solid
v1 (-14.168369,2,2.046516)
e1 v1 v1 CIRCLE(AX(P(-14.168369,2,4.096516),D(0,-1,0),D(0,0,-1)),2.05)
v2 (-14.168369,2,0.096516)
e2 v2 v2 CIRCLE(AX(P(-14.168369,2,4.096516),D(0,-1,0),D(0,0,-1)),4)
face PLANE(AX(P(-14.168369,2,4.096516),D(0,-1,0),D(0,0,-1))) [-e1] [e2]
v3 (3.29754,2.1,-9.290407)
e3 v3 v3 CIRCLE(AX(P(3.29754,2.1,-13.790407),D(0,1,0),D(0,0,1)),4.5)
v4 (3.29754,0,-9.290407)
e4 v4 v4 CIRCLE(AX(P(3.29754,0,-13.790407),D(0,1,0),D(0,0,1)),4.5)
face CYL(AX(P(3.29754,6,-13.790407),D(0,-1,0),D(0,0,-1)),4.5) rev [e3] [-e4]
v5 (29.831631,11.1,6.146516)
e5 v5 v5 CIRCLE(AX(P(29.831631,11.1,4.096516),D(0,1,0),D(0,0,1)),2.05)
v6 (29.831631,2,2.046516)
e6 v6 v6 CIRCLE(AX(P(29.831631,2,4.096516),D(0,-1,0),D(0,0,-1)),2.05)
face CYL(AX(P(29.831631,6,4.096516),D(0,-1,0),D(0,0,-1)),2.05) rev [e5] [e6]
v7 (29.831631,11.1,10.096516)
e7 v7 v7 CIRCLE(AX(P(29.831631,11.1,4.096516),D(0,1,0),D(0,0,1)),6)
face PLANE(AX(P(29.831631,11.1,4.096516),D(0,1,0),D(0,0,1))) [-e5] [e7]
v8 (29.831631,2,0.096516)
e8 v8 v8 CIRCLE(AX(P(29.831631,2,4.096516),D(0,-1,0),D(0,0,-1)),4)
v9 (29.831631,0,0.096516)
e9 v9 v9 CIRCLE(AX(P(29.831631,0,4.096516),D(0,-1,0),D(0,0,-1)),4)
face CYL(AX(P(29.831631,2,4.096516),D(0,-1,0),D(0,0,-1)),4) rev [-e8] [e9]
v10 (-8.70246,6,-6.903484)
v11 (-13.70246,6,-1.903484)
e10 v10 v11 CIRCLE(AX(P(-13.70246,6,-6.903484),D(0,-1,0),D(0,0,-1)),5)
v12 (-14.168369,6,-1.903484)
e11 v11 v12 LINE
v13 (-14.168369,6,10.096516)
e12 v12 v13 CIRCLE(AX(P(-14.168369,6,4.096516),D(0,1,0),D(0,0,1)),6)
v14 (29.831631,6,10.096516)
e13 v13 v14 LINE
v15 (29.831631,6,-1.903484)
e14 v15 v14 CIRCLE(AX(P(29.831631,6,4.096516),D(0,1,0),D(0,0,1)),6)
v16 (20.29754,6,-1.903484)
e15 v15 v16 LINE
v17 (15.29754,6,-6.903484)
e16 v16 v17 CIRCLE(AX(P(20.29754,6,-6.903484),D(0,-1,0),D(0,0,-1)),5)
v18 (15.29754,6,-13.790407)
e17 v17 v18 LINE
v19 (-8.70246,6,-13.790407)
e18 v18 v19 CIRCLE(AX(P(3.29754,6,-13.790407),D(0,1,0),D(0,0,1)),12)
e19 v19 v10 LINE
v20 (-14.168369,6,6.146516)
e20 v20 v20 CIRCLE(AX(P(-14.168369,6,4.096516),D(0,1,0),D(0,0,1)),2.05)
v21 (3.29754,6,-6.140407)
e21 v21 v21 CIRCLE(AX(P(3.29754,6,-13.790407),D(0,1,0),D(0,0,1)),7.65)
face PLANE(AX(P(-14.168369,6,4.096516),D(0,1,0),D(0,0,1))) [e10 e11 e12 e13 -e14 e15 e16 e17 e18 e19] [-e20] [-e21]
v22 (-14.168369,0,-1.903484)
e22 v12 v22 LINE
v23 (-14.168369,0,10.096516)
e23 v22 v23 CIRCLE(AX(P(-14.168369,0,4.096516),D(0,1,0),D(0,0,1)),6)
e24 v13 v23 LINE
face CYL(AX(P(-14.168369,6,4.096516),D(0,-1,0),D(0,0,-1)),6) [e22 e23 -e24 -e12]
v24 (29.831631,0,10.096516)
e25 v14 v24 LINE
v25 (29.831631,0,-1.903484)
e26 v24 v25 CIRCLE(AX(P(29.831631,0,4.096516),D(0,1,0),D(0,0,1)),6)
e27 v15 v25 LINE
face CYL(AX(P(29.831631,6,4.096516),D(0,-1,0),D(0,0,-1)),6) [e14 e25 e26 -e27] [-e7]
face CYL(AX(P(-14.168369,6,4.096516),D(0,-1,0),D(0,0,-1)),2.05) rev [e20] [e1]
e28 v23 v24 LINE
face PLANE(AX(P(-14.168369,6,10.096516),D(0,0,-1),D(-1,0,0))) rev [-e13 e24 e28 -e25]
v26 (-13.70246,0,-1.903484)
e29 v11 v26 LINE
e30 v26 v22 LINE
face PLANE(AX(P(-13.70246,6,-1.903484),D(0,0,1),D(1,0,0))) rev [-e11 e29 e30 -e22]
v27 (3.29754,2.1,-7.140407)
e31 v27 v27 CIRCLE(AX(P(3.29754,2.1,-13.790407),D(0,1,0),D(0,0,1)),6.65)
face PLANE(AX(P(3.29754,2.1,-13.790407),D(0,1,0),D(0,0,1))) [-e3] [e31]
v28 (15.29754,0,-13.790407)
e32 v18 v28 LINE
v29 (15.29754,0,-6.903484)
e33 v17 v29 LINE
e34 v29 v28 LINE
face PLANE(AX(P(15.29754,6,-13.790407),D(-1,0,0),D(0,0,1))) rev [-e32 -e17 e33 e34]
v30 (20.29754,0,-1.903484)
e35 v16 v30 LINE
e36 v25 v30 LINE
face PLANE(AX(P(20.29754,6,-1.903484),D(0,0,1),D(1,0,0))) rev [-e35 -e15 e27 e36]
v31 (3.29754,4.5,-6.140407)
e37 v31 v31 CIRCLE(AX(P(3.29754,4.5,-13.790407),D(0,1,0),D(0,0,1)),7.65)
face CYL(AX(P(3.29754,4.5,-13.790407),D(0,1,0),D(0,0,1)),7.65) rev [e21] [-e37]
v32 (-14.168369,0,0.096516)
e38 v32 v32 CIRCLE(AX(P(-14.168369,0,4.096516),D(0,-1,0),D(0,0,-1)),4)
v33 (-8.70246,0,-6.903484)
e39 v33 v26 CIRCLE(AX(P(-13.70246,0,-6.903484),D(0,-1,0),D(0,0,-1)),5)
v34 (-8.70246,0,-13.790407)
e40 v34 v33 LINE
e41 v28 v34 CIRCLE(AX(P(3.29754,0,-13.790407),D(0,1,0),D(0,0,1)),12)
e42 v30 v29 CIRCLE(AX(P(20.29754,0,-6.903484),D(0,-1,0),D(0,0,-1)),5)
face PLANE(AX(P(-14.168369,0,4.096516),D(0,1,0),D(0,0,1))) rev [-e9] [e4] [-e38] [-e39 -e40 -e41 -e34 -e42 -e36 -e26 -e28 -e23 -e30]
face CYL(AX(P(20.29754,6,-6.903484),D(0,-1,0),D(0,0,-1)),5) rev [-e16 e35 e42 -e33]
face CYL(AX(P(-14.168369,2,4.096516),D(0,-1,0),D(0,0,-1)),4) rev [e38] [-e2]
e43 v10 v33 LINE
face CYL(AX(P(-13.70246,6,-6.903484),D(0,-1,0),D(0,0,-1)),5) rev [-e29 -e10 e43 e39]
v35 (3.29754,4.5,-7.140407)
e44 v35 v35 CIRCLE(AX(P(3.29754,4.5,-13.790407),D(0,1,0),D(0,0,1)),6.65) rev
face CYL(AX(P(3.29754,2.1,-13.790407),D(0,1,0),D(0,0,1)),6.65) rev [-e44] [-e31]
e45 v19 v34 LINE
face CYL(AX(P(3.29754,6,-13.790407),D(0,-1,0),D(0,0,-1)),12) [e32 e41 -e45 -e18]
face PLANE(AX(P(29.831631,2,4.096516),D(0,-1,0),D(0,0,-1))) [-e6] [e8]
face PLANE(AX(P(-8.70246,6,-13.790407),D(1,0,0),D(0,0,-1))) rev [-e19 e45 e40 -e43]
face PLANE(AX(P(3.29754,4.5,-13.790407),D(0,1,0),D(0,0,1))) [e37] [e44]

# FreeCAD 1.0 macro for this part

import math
import FreeCAD as App
import Part
import Sketcher
from FreeCAD import Vector
Q = App.Units.Quantity

doc = App.newDocument("Part")
body = doc.addObject("PartDesign::Body", "Body")

sketch1 = body.newObject("Sketcher::SketchObject", "Sketch")
sketch1.AttachmentSupport = (doc.getObject("XZ_Plane"), [""])
sketch1.MapMode = "FlatFace"
sketch1.addGeometry(Part.LineSegment(Vector(-14.17, 10.1, 0), Vector(29.83, 10.1, 0)), False)
sketch1.addGeometry(Part.ArcOfCircle(Part.Circle(Vector(29.83, 4.1, 0), Vector(0, 0, 1), 6), math.radians(-90), math.radians(90)), False)
sketch1.addGeometry(Part.LineSegment(Vector(29.83, -1.9, 0), Vector(20.3, -1.9, 0)), False)
sketch1.addGeometry(Part.ArcOfCircle(Part.Circle(Vector(20.3, -6.9, 0), Vector(0, 0, 1), 5), math.radians(90), math.radians(180)), False)
sketch1.addGeometry(Part.LineSegment(Vector(15.3, -6.9, 0), Vector(15.3, -13.79, 0)), False)
sketch1.addGeometry(Part.ArcOfCircle(Part.Circle(Vector(3.3, -13.79, 0), Vector(0, 0, 1), 12), math.radians(180), math.radians(360)), False)
sketch1.addGeometry(Part.LineSegment(Vector(-8.7, -13.79, 0), Vector(-8.7, -6.9, 0)), False)
sketch1.addGeometry(Part.ArcOfCircle(Part.Circle(Vector(-13.7, -6.9, 0), Vector(0, 0, 1), 5), math.radians(0), math.radians(90)), False)
sketch1.addGeometry(Part.LineSegment(Vector(-13.7, -1.9, 0), Vector(-14.17, -1.9, 0)), False)
sketch1.addGeometry(Part.ArcOfCircle(Part.Circle(Vector(-14.17, 4.1, 0), Vector(0, 0, 1), 6), math.radians(90), math.radians(270)), False)
sketch1.addGeometry(Part.Circle(Vector(-14.17, 4.1, 0), Vector(0, 0, 1), 2.05), False)
sketch1.addGeometry(Part.Circle(Vector(29.83, 4.1, 0), Vector(0, 0, 1), 2.05), False)
sketch1.addGeometry(Part.Circle(Vector(3.3, -13.79, 0), Vector(0, 0, 1), 4.5), False)
sketch1.addConstraint(Sketcher.Constraint("Tangent", 0, 2, 1, 2))
sketch1.addConstraint(Sketcher.Constraint("Tangent", 1, 1, 2, 1))
sketch1.addConstraint(Sketcher.Constraint("Tangent", 2, 2, 3, 1))
sketch1.addConstraint(Sketcher.Constraint("Tangent", 3, 2, 4, 1))
sketch1.addConstraint(Sketcher.Constraint("Tangent", 4, 2, 5, 2))
sketch1.addConstraint(Sketcher.Constraint("Tangent", 5, 1, 6, 1))
sketch1.addConstraint(Sketcher.Constraint("Tangent", 6, 2, 7, 1))
sketch1.addConstraint(Sketcher.Constraint("Tangent", 7, 2, 8, 1))
sketch1.addConstraint(Sketcher.Constraint("Tangent", 8, 2, 9, 2))
sketch1.addConstraint(Sketcher.Constraint("Tangent", 9, 1, 0, 1))
sketch1.addConstraint(Sketcher.Constraint("Horizontal", 0))
sketch1.addConstraint(Sketcher.Constraint("Horizontal", 2))
sketch1.addConstraint(Sketcher.Constraint("Vertical", 4))
sketch1.addConstraint(Sketcher.Constraint("Vertical", 6))
sketch1.addConstraint(Sketcher.Constraint("Horizontal", 8))
sketch1.addConstraint(Sketcher.Constraint("Coincident", 10, 3, 9, 3))
sketch1.addConstraint(Sketcher.Constraint("Coincident", 11, 3, 1, 3))
sketch1.addConstraint(Sketcher.Constraint("Coincident", 12, 3, 5, 3))
sketch1.addConstraint(Sketcher.Constraint("Equal", 3, 7))
sketch1.addConstraint(Sketcher.Constraint("Equal", 1, 9))
sketch1.addConstraint(Sketcher.Constraint("Equal", 10, 11))
sketch1.addConstraint(Sketcher.Constraint("Diameter", 12, Q("9 mm")))
sketch1.addConstraint(Sketcher.Constraint("Radius", 1, Q("6 mm")))
sketch1.addConstraint(Sketcher.Constraint("Radius", 3, Q("5 mm")))
sketch1.addConstraint(Sketcher.Constraint("Radius", 5, Q("12 mm")))
sketch1.addConstraint(Sketcher.Constraint("Diameter", 10, Q("4.1 mm")))
sketch1.addConstraint(Sketcher.Constraint("DistanceX", 0, 1, 0, 2, Q("44 mm")))
sketch1.addConstraint(Sketcher.Constraint("DistanceX", 2, 2, 2, 1, Q("9.534091 mm")))
sketch1.addConstraint(Sketcher.Constraint("DistanceY", 4, 2, 4, 1, Q("6.886923 mm")))
sketch1.addConstraint(Sketcher.Constraint("DistanceX", -1, 1, 1, 3, Q("29.831631 mm")))
sketch1.addConstraint(Sketcher.Constraint("DistanceY", -1, 1, 1, 3, Q("4.096516 mm")))
pad1 = body.newObject("PartDesign::Pad", "Pad")
pad1.Profile = sketch1
pad1.Length = 6
pad1.Reversed = True

sketch2 = body.newObject("Sketcher::SketchObject", "Sketch001")
sketch2.AttachmentSupport = (doc.getObject("XZ_Plane"), [""])
sketch2.MapMode = "FlatFace"
sketch2.addGeometry(Part.Circle(Vector(-14.2, 4.1, 0), Vector(0, 0, 1), 4), False)
sketch2.addGeometry(Part.Circle(Vector(29.8, 4.1, 0), Vector(0, 0, 1), 4), False)
sketch2.addConstraint(Sketcher.Constraint("Equal", 0, 1))
sketch2.addConstraint(Sketcher.Constraint("Horizontal", 0, 3, 1, 3))
sketch2.addConstraint(Sketcher.Constraint("Diameter", 0, Q("8 mm")))
sketch2.addConstraint(Sketcher.Constraint("DistanceX", 0, 3, 1, 3, Q("44 mm")))
sketch2.addConstraint(Sketcher.Constraint("DistanceX", 0, 3, -1, 1, Q("14.168369 mm")))
sketch2.addConstraint(Sketcher.Constraint("DistanceY", -1, 1, 0, 3, Q("4.096516 mm")))
pocket1 = body.newObject("PartDesign::Pocket", "Pocket")
pocket1.Profile = sketch2
pocket1.Length = 2

sketch3 = body.newObject("Sketcher::SketchObject", "Sketch002")
sketch3.AttachmentSupport = (doc.getObject("XZ_Plane"), [""])
sketch3.MapMode = "FlatFace"
sketch3.AttachmentOffset = App.Placement(Vector(0, 0, -6), App.Rotation())
sketch3.addGeometry(Part.Circle(Vector(3, -14, 0), Vector(0, 0, 1), 7), False)
sketch3.addConstraint(Sketcher.Constraint("Diameter", 0, Q("13.3 mm")))
sketch3.addConstraint(Sketcher.Constraint("DistanceX", -1, 1, 0, 3, Q("3.29754 mm")))
sketch3.addConstraint(Sketcher.Constraint("DistanceY", 0, 3, -1, 1, Q("13.790407 mm")))
pocket2 = body.newObject("PartDesign::Pocket", "Pocket001")
pocket2.Profile = sketch3
pocket2.Length = 3.9
pocket2.Reversed = True

sketch4 = body.newObject("Sketcher::SketchObject", "Sketch003")
sketch4.AttachmentSupport = (doc.getObject("XZ_Plane"), [""])
sketch4.MapMode = "FlatFace"
sketch4.AttachmentOffset = App.Placement(Vector(0, 0, -6), App.Rotation())
sketch4.addGeometry(Part.Circle(Vector(3, -14, 0), Vector(0, 0, 1), 8), False)
sketch4.addConstraint(Sketcher.Constraint("Diameter", 0, Q("15.3 mm")))
sketch4.addConstraint(Sketcher.Constraint("DistanceX", -1, 1, 0, 3, Q("3.29754 mm")))
sketch4.addConstraint(Sketcher.Constraint("DistanceY", 0, 3, -1, 1, Q("13.790407 mm")))
pocket3 = body.newObject("PartDesign::Pocket", "Pocket002")
pocket3.Profile = sketch4
pocket3.Length = 1.5
pocket3.Reversed = True

sketch5 = body.newObject("Sketcher::SketchObject", "Sketch004")
sketch5.AttachmentSupport = (doc.getObject("XZ_Plane"), [""])
sketch5.MapMode = "FlatFace"
sketch5.AttachmentOffset = App.Placement(Vector(0, 0, -6), App.Rotation())
sketch5.addGeometry(Part.Circle(Vector(29.8, 4.1, 0), Vector(0, 0, 1), 6), False)
sketch5.addGeometry(Part.Circle(Vector(29.8, 4.1, 0), Vector(0, 0, 1), 2), False)
sketch5.addConstraint(Sketcher.Constraint("Coincident", 1, 3, 0, 3))
sketch5.addConstraint(Sketcher.Constraint("Diameter", 0, Q("12 mm")))
sketch5.addConstraint(Sketcher.Constraint("Diameter", 1, Q("4.1 mm")))
sketch5.addConstraint(Sketcher.Constraint("DistanceX", -1, 1, 0, 3, Q("29.831631 mm")))
sketch5.addConstraint(Sketcher.Constraint("DistanceY", -1, 1, 0, 3, Q("4.096516 mm")))
pad2 = body.newObject("PartDesign::Pad", "Pad001")
pad2.Profile = sketch5
pad2.Length = 5.1
pad2.Reversed = True

doc.recompute()
